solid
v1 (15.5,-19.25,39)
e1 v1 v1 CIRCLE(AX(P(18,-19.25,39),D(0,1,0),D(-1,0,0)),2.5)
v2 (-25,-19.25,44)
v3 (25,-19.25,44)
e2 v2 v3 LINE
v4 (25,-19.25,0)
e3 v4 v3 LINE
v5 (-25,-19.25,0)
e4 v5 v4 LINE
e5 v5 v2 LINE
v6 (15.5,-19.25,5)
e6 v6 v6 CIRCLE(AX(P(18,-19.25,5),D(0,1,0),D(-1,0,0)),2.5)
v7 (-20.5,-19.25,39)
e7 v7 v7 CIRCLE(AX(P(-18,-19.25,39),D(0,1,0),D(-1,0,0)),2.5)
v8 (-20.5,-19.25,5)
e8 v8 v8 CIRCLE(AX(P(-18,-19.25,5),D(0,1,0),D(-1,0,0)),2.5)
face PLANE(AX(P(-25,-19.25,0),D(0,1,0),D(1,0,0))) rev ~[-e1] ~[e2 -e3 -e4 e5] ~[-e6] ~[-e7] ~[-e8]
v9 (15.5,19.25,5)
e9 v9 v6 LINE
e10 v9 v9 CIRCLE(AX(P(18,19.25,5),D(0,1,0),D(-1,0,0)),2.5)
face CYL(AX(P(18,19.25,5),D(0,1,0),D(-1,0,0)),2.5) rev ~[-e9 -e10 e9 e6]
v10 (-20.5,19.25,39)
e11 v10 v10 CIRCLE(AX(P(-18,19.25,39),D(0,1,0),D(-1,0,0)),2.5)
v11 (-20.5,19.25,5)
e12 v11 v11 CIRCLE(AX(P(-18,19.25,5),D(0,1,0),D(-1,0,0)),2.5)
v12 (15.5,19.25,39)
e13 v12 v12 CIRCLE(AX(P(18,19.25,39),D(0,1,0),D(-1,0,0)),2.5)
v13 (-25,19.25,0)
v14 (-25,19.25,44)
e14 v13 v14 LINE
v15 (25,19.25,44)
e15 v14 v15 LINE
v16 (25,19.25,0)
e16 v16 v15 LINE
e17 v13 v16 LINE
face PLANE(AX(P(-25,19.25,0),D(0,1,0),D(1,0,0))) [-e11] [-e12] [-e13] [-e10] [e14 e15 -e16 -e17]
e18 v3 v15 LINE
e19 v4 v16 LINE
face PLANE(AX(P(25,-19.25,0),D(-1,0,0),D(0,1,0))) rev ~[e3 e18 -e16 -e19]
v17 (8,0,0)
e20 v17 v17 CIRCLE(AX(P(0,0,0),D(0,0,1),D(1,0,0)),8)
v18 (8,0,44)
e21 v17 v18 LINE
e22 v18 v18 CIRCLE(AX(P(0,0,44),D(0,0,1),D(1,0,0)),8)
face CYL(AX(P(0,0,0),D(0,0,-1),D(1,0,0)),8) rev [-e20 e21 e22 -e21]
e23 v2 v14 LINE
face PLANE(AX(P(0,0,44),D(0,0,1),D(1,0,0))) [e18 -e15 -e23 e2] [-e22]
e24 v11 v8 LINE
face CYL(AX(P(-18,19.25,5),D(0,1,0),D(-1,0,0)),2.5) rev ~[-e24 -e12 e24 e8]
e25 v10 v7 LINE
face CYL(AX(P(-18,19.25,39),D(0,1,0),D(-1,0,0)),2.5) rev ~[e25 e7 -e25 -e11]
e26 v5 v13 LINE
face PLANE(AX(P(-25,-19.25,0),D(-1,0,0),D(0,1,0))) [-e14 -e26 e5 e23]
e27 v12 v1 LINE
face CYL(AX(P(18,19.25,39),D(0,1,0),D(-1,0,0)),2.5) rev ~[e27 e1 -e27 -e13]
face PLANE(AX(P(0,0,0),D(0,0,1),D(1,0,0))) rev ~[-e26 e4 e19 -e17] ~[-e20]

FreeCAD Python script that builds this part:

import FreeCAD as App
import Part
import Sketcher
Q = App.Units.Quantity


def add_polygon(sketch, points):
    """Adds a closed chain of lines whose ends are joined by coincident constraints."""
    first, n = sketch.GeometryCount, len(points)
    for a, b in zip(points, points[1:] + points[:1]):
        sketch.addGeometry(Part.LineSegment(App.Vector(*a, 0), App.Vector(*b, 0)), False)
    for i in range(n):
        sketch.addConstraint(Sketcher.Constraint("Coincident", first + i, 2, first + (i + 1) % n, 1))

doc = App.newDocument("Part")
params = doc.addObject("Spreadsheet::Sheet", "Params")
for row, (alias, value) in enumerate([
    ("sketch1_diameter", "16 mm"),
    ("sketch1_width", "50 mm"),
    ("sketch1_height", "38.5 mm"),
    ("pad1_length", "44 mm"),
    ("sketch2_diameter", "5 mm"),
    ("pocket1_length", "38.5 mm"),
], start=1):
    params.set(f"A{row}", alias)
    params.set(f"B{row}", "=" + value)
    params.setAlias(f"B{row}", alias)

body = doc.addObject("PartDesign::Body", "Body")

sketch1 = doc.addObject("Sketcher::SketchObject", "Sketch")
body.addObject(sketch1)
sketch1.AttachmentSupport = (doc.XY_Plane, [""])
sketch1.MapMode = "FlatFace"
add_polygon(sketch1, [(-25, 19.25), (-25, -19.25), (25, -19.25), (25, 19.25)])
sketch1.addGeometry(Part.Circle(App.Vector(0, 0, 0), App.Vector(0, 0, 1), 8), False)
sketch1.addConstraint([
    Sketcher.Constraint("Vertical", 0),
    Sketcher.Constraint("Horizontal", 1),
    Sketcher.Constraint("Vertical", 2),
    Sketcher.Constraint("Horizontal", 3),
    Sketcher.Constraint("Coincident", 4, 3, -1, 1),
    Sketcher.Constraint("Symmetric", 0, 2, 2, 2, -1, 1),
    Sketcher.Constraint("Diameter", 4, Q("16 mm")),
    Sketcher.Constraint("DistanceX", 1, 1, 1, 2, Q("50 mm")),
    Sketcher.Constraint("DistanceY", 0, 2, 0, 1, Q("38.5 mm")),
])
sketch1.setExpression("Constraints[10]", "Params.sketch1_diameter")
sketch1.setExpression("Constraints[11]", "Params.sketch1_width")
sketch1.setExpression("Constraints[12]", "Params.sketch1_height")
pad1 = doc.addObject("PartDesign::Pad", "Pad")
body.addObject(pad1)
pad1.Profile = sketch1
pad1.setExpression("Length", "Params.pad1_length")

sketch2 = doc.addObject("Sketcher::SketchObject", "Sketch001")
body.addObject(sketch2)
sketch2.AttachmentSupport = (doc.XZ_Plane, [""])
sketch2.MapMode = "FlatFace"
sketch2.AttachmentOffset = App.Placement(App.Vector(0, 0, -19.25), App.Rotation())
sketch2.addGeometry([
    Part.Circle(App.Vector(-18, 39, 0), App.Vector(0, 0, 1), 2.5),
    Part.Circle(App.Vector(-18, 5, 0), App.Vector(0, 0, 1), 2.5),
    Part.Circle(App.Vector(18, 39, 0), App.Vector(0, 0, 1), 2.5),
    Part.Circle(App.Vector(18, 5, 0), App.Vector(0, 0, 1), 2.5),
], False)
sketch2.addConstraint([
    Sketcher.Constraint("Equal", 0, 1),
    Sketcher.Constraint("Equal", 1, 2),
    Sketcher.Constraint("Equal", 2, 3),
    Sketcher.Constraint("Symmetric", 0, 3, 2, 3, -2),
    Sketcher.Constraint("Symmetric", 1, 3, 3, 3, -2),
    Sketcher.Constraint("Vertical", 0, 3, 1, 3),
    Sketcher.Constraint("Diameter", 0, Q("5 mm")),
    Sketcher.Constraint("DistanceX", 0, 3, -1, 1, Q("18 mm")),
    Sketcher.Constraint("DistanceY", -1, 1, 0, 3, Q("39 mm")),
    Sketcher.Constraint("DistanceY", -1, 1, 1, 3, Q("5 mm")),
])
sketch2.setExpression("Constraints[6]", "Params.sketch2_diameter")
pocket1 = doc.addObject("PartDesign::Pocket", "Pocket")
body.addObject(pocket1)
pocket1.Profile = sketch2
pocket1.setExpression("Length", "Params.pocket1_length")
pocket1.Reversed = True

doc.recompute()
